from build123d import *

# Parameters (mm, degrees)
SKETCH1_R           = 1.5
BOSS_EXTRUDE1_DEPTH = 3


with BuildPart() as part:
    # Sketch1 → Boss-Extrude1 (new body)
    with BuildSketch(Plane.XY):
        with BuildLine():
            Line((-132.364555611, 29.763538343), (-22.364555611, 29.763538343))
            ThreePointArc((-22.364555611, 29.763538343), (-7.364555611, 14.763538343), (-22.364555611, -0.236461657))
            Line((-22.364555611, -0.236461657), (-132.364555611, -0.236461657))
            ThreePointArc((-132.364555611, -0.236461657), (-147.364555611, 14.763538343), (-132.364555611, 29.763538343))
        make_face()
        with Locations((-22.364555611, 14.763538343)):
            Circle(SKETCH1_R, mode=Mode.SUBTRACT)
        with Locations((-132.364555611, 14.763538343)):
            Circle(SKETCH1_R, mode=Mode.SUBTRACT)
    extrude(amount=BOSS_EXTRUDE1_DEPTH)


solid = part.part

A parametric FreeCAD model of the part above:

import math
import FreeCAD as App
import Part
import Sketcher
from FreeCAD import Vector

doc = App.newDocument("Part")
params = doc.addObject("Spreadsheet::Sheet", "Params")
for row, (alias, value) in enumerate([
    ("sketch1_diameter", "3 mm"),
    ("sketch1_radius", "15 mm"),
    ("sketch1_width", "110 mm"),
    ("pad1_length", "3 mm"),
], start=1):
    params.set(f"A{row}", alias)
    params.set(f"B{row}", "=" + value)
    params.setAlias(f"B{row}", alias)

body = doc.addObject("PartDesign::Body", "Body")

# Sketch on XY plane
sketch1 = body.newObject("Sketcher::SketchObject", "Sketch")
sketch1.AttachmentSupport = (doc.getObject("XY_Plane"), [""])
sketch1.MapMode = "FlatFace"
sketch1.addGeometry([
    Part.LineSegment(Vector(-22.4, 29.8, 0), Vector(-132.4, 29.8, 0)),  # 0
    Part.ArcOfCircle(Part.Circle(Vector(-132.4, 14.8, 0), Vector(0, 0, 1), 15), math.radians(90), math.radians(270)),  # 1
    Part.LineSegment(Vector(-132.4, -0.2, 0), Vector(-22.4, -0.2, 0)),  # 2
    Part.ArcOfCircle(Part.Circle(Vector(-22.4, 14.8, 0), Vector(0, 0, 1), 15), math.radians(-90), math.radians(90)),  # 3
    Part.Circle(Vector(-22.4, 14.8, 0), Vector(0, 0, 1), 1.5),  # 4
    Part.Circle(Vector(-132.4, 14.8, 0), Vector(0, 0, 1), 1.5),  # 5
], False)
sketch1.addConstraint([
    Sketcher.Constraint("Tangent", 0, 2, 1, 1),
    Sketcher.Constraint("Tangent", 1, 2, 2, 1),
    Sketcher.Constraint("Tangent", 2, 2, 3, 1),
    Sketcher.Constraint("Tangent", 3, 2, 0, 1),
    Sketcher.Constraint("Horizontal", 0),
    Sketcher.Constraint("Horizontal", 2),
    Sketcher.Constraint("Coincident", 4, 3, 3, 3),
    Sketcher.Constraint("Coincident", 5, 3, 1, 3),
    Sketcher.Constraint("Equal", 4, 5),
    Sketcher.Constraint("Diameter", 4, 3.0),
    Sketcher.Constraint("Radius", 1, 15.0),
    Sketcher.Constraint("DistanceX", 0, 2, 0, 1, 110.0),
    Sketcher.Constraint("DistanceY", -1, 1, 1, 3, 14.763538),
    Sketcher.Constraint("DistanceX", 1, 3, -1, 1, 132.364556),
])
sketch1.setExpression("Constraints[9]", "Params.sketch1_diameter")
sketch1.setExpression("Constraints[10]", "Params.sketch1_radius")
sketch1.setExpression("Constraints[11]", "Params.sketch1_width")
pad1 = body.newObject("PartDesign::Pad", "Pad")
pad1.Profile = sketch1
pad1.setExpression("Length", "Params.pad1_length")

doc.recompute()
